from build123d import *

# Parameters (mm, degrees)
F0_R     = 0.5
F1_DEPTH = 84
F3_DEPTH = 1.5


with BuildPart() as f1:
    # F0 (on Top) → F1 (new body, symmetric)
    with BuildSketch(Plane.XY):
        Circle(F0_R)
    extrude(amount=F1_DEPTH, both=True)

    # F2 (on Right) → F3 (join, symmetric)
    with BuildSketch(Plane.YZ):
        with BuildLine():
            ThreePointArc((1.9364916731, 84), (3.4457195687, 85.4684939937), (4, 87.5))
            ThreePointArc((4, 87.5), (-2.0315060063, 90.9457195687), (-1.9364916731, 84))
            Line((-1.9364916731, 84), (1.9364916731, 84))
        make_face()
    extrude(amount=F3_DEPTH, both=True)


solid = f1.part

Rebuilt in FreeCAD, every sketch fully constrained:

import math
import FreeCAD as App
import Part
import Sketcher

V = App.Vector
Q = App.Units.Quantity

doc = App.newDocument("Part")
body = doc.addObject("PartDesign::Body", "Body")

# Sketch on XY plane
sketch1 = body.newObject("Sketcher::SketchObject", "Sketch")
sketch1.AttachmentSupport = (doc.getObject("XY_Plane"), [""])
sketch1.MapMode = "FlatFace"
sketch1.addGeometry(Part.Circle(V(0, 0, 0), V(0, 0, 1), 0.5), False)
sketch1.addConstraint(Sketcher.Constraint("Coincident", 0, 3, -1, 1))
sketch1.addConstraint(Sketcher.Constraint("Diameter", 0, Q("1 mm")))
pad1 = body.newObject("PartDesign::Pad", "Pad")
pad1.Profile = sketch1
pad1.Length = 168
pad1.Midplane = True

# Sketch on YZ plane
sketch2 = body.newObject("Sketcher::SketchObject", "Sketch001")
sketch2.AttachmentSupport = (doc.getObject("YZ_Plane"), [""])
sketch2.MapMode = "FlatFace"
sketch2.addGeometry(Part.ArcOfCircle(Part.Circle(V(0, 87.5, 0), V(0, 0, 1), 4), math.radians(-61), math.radians(0)), False)
sketch2.addGeometry(Part.ArcOfCircle(Part.Circle(V(0, 87.5, 0), V(0, 0, 1), 4), math.radians(0), math.radians(241)), False)
sketch2.addGeometry(Part.LineSegment(V(-1.9, 84, 0), V(1.9, 84, 0)), False)
sketch2.addConstraint(Sketcher.Constraint("Tangent", 0, 2, 1, 1))
sketch2.addConstraint(Sketcher.Constraint("Coincident", 1, 2, 2, 1))
sketch2.addConstraint(Sketcher.Constraint("Coincident", 2, 2, 0, 1))
sketch2.addConstraint(Sketcher.Constraint("Horizontal", 2))
sketch2.addConstraint(Sketcher.Constraint("Equal", 0, 1))
sketch2.addConstraint(Sketcher.Constraint("PointOnObject", 0, 3, -2))
sketch2.addConstraint(Sketcher.Constraint("Horizontal", 1, 3, 0, 2))
sketch2.addConstraint(Sketcher.Constraint("Radius", 0, Q("4 mm")))
sketch2.addConstraint(Sketcher.Constraint("DistanceY", -1, 1, 1, 2, Q("84 mm")))
sketch2.addConstraint(Sketcher.Constraint("DistanceY", -1, 1, 0, 3, Q("87.5 mm")))
pad2 = body.newObject("PartDesign::Pad", "Pad001")
pad2.Profile = sketch2
pad2.Length = 3
pad2.Midplane = True

doc.recompute()
